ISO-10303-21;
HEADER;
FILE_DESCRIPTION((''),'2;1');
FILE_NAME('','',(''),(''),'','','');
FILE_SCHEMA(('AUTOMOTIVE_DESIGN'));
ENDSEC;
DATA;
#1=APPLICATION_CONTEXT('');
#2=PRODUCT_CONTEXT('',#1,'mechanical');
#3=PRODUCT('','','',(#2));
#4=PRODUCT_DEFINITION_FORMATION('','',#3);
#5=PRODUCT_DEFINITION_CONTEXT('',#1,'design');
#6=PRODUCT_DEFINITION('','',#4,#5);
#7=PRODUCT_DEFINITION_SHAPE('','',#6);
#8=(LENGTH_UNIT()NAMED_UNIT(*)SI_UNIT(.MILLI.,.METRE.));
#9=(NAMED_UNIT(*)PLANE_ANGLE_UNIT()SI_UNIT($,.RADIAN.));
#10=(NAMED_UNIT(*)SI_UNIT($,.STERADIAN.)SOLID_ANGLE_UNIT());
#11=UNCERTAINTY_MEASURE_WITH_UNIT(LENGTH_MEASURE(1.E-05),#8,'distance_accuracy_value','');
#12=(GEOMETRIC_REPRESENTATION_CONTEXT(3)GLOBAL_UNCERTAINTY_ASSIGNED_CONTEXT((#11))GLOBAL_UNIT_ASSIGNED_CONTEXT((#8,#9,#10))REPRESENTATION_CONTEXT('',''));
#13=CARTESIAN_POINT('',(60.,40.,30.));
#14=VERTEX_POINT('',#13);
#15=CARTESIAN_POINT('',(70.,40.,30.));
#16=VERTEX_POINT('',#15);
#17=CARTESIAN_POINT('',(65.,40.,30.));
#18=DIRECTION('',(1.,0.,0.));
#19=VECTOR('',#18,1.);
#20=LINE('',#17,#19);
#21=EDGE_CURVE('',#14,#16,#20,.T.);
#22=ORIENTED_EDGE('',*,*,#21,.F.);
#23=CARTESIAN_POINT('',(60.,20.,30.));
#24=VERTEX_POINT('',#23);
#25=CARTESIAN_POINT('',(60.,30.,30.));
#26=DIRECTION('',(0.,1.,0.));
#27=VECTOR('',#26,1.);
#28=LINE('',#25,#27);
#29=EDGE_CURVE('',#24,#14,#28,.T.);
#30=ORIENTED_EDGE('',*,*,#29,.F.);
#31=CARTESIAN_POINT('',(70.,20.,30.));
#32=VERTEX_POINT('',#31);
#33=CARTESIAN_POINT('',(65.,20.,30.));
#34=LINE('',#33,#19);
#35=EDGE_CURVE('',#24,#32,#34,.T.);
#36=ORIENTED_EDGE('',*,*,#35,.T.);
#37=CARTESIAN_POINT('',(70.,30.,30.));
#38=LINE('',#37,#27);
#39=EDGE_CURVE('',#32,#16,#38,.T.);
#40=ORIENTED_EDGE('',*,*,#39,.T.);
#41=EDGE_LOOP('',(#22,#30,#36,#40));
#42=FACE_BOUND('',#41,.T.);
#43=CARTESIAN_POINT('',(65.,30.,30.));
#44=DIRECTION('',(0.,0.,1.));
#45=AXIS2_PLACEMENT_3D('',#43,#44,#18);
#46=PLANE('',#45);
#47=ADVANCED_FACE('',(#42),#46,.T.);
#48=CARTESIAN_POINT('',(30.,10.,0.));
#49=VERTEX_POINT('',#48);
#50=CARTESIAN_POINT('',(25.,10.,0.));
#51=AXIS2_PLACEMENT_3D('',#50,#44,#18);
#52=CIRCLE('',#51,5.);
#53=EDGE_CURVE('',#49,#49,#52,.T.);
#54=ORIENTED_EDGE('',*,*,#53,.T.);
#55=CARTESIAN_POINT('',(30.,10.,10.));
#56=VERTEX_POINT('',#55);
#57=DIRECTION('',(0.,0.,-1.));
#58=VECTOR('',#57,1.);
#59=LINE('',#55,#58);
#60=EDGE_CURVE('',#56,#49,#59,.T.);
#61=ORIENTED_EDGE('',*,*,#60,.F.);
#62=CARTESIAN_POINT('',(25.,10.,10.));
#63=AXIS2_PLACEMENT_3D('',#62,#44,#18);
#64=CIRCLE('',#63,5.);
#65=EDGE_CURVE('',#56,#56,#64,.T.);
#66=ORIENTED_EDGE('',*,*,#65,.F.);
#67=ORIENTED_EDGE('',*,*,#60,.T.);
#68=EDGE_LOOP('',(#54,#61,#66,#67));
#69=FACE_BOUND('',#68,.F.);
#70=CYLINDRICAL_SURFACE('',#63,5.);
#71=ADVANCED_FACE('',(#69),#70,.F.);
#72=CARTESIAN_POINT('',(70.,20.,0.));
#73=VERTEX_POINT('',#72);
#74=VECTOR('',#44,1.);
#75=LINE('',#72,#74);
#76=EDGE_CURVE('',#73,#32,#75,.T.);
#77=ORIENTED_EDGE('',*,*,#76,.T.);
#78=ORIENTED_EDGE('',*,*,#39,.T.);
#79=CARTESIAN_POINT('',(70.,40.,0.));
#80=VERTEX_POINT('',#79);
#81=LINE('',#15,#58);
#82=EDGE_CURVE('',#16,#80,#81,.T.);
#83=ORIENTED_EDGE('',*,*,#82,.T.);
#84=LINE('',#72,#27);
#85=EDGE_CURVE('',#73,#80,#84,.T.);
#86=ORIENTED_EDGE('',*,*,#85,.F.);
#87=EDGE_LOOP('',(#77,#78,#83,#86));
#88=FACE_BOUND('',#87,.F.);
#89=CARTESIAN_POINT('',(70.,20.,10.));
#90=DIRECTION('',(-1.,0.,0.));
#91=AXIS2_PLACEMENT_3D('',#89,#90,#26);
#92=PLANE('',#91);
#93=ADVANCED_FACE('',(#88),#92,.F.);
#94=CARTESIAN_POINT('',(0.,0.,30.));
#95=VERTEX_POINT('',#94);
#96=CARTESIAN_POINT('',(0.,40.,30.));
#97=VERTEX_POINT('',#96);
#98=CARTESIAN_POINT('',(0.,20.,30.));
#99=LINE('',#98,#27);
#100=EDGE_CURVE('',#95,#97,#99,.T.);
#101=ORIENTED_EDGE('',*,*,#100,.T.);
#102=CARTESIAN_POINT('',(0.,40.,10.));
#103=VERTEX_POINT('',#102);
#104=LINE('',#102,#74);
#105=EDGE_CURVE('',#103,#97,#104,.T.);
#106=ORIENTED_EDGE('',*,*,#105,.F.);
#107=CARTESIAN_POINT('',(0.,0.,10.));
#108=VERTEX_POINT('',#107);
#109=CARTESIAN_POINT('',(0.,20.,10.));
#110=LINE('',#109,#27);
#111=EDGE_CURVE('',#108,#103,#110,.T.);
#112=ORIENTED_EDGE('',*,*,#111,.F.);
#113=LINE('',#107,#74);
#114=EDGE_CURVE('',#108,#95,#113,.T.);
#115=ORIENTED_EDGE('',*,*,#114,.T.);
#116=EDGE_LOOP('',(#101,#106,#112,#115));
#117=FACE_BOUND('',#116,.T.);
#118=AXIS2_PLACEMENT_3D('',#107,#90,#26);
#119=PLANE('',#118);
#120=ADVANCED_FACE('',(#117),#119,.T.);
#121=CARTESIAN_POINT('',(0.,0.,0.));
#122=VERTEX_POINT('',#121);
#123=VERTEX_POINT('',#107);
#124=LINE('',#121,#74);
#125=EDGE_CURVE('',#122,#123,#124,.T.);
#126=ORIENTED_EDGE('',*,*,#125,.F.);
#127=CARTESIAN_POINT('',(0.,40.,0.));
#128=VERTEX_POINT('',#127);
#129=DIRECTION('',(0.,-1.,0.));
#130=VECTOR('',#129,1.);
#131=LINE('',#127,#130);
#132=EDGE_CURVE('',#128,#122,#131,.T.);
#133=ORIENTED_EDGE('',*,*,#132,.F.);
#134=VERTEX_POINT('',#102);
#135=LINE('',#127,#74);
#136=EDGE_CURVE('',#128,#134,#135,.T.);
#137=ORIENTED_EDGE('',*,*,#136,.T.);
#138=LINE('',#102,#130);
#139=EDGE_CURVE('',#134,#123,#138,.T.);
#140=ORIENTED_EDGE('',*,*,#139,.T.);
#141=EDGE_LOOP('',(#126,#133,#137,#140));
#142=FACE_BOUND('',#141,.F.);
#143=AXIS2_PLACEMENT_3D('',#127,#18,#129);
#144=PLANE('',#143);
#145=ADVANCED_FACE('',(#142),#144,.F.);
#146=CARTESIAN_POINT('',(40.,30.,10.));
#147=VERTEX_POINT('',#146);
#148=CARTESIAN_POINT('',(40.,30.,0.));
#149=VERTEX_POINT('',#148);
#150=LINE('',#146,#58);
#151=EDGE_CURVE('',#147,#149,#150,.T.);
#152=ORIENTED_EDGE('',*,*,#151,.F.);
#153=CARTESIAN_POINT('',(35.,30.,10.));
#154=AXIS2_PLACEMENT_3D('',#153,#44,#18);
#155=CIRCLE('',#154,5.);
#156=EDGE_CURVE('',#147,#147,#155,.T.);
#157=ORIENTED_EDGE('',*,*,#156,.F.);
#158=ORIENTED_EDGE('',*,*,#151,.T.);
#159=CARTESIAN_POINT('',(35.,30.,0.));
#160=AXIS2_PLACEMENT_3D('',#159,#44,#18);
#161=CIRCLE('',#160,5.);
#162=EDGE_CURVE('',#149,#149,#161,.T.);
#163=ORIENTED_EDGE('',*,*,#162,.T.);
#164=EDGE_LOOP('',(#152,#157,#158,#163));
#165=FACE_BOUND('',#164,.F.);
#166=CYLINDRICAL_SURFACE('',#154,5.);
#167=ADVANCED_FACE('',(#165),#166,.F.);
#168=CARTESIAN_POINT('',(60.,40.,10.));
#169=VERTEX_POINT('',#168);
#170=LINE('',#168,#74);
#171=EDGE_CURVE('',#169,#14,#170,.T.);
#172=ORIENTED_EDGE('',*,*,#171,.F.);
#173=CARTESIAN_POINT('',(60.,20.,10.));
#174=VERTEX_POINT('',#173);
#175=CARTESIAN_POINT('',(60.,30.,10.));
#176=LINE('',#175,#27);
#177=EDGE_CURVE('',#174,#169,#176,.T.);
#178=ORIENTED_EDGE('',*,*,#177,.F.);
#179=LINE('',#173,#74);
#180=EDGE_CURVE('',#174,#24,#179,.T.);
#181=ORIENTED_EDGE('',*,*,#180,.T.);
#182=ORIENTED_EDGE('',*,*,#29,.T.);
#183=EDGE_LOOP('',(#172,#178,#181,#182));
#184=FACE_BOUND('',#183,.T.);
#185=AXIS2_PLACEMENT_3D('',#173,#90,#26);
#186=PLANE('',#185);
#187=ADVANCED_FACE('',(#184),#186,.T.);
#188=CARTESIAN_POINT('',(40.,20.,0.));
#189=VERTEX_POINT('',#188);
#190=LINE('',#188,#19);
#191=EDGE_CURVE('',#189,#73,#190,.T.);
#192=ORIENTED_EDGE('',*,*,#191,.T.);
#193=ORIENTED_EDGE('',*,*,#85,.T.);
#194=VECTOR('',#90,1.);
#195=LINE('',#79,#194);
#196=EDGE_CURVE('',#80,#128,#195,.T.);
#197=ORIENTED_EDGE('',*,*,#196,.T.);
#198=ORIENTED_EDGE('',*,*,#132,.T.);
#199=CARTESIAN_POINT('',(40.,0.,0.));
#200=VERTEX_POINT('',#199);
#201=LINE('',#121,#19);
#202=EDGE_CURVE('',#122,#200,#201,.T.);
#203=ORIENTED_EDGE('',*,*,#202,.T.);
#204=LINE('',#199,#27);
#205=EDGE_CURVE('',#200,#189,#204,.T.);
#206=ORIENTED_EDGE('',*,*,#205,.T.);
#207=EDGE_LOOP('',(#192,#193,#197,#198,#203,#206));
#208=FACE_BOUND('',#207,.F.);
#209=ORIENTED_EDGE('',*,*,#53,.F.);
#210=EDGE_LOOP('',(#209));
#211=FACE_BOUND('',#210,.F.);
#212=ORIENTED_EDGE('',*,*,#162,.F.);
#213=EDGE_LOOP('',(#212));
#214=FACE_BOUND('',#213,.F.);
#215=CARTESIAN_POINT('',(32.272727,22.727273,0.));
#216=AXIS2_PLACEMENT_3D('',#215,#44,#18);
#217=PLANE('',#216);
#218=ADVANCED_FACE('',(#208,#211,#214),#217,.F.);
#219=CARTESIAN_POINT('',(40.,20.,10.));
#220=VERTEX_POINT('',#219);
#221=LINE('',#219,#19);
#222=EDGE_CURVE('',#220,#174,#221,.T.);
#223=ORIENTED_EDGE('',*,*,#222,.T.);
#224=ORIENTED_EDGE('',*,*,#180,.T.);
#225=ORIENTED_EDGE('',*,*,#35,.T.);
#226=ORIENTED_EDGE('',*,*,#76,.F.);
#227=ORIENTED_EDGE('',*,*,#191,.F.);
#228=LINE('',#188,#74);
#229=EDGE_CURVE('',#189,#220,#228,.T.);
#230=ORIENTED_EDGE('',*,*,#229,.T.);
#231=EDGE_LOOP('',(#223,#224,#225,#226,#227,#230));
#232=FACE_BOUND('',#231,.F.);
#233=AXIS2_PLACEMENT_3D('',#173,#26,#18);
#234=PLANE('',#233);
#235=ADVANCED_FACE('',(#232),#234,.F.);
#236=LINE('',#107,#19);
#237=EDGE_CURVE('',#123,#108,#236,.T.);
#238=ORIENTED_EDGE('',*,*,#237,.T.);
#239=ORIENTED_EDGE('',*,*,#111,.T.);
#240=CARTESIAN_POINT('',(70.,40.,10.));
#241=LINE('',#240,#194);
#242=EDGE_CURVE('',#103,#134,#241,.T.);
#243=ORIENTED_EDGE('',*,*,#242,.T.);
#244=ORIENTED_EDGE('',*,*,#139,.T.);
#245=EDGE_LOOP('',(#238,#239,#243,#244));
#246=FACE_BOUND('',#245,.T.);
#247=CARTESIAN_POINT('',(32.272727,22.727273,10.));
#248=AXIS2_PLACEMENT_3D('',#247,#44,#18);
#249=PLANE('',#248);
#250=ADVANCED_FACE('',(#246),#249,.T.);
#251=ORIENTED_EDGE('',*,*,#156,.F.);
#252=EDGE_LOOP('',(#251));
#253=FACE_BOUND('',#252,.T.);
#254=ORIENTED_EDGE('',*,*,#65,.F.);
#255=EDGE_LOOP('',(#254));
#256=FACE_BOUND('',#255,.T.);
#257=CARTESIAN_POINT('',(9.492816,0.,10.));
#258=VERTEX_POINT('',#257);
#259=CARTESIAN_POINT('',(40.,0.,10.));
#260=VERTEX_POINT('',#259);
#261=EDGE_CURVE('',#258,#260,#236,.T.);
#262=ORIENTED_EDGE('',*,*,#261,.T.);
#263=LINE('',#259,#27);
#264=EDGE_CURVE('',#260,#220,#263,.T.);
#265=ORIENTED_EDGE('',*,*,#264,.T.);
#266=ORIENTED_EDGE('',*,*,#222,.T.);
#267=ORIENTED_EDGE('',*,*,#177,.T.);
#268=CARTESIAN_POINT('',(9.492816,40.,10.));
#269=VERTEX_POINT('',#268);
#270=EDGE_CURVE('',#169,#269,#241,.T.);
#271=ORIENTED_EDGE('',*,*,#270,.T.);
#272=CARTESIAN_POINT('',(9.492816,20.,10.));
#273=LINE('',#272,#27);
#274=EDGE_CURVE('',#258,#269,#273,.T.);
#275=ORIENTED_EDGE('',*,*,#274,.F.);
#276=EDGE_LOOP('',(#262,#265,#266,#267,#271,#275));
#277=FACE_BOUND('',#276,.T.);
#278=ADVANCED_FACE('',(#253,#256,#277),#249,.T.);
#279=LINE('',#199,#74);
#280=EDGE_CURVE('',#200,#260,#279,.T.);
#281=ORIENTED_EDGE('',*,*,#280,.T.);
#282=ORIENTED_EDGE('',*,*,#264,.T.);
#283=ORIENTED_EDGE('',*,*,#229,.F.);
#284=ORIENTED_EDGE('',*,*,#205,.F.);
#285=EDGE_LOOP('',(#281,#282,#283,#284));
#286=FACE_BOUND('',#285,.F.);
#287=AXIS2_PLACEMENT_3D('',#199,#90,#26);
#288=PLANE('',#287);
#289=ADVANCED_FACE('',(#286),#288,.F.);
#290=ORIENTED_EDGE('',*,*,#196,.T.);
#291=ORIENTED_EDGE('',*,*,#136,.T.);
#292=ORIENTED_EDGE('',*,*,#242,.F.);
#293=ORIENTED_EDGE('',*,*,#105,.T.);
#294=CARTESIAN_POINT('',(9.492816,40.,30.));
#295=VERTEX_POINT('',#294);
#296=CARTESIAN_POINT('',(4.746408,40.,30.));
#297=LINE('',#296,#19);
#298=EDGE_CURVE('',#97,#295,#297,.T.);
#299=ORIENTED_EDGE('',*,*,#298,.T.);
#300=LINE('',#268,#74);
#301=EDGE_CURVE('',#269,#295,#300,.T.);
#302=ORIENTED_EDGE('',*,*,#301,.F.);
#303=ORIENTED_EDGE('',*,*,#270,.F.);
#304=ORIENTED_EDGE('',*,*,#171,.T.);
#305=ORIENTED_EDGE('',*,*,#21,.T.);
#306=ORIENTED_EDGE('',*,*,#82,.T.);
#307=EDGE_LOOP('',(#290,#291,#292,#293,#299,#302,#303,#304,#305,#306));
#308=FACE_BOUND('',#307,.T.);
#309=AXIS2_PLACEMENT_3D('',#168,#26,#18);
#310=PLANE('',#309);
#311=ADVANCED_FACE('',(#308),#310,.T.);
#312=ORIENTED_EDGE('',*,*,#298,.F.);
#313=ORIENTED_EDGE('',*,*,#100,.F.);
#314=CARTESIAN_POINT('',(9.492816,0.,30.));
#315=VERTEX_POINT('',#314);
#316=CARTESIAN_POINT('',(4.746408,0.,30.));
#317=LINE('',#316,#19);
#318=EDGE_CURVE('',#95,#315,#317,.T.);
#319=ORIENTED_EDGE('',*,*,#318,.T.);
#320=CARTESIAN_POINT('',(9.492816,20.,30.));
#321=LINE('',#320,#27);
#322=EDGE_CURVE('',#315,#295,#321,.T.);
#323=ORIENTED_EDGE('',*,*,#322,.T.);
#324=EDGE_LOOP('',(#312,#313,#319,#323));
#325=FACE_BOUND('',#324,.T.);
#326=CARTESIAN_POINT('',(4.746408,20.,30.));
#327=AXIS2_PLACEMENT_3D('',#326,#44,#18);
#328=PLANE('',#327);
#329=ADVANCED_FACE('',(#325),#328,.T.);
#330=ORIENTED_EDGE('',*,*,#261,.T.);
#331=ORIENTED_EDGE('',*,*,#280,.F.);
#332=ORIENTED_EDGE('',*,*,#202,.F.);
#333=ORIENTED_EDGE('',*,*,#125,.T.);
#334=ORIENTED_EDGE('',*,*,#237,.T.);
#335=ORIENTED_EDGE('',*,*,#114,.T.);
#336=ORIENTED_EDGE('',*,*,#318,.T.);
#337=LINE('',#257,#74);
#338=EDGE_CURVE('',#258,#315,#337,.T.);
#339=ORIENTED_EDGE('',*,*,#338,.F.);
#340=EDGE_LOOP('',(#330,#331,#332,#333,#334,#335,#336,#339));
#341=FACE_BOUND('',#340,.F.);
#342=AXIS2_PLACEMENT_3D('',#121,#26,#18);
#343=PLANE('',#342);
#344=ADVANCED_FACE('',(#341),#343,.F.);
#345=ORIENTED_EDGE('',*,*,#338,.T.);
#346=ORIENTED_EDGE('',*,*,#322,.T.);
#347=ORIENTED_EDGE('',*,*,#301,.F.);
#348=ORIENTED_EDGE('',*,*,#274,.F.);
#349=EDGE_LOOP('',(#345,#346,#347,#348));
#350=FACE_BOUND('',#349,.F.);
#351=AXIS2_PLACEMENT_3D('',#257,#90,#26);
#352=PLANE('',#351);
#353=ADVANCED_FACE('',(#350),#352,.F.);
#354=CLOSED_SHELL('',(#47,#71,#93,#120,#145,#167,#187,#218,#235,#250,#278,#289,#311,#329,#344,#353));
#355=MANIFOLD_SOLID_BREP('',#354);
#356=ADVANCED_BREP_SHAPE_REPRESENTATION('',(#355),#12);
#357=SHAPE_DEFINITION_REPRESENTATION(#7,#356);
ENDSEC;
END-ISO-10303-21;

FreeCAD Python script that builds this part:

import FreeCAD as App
import Part
import Sketcher

doc = App.newDocument("Part")
params = doc.addObject("Spreadsheet::Sheet", "Params")
for row, (alias, value) in enumerate([
    ("sketch1_width", "40 mm"),
    ("sketch1_width2", "30 mm"),
    ("pad1_length", "10 mm"),
    ("sketch2_height", "40 mm"),
    ("pad2_length", "20 mm"),
    ("sketch3_width", "10 mm"),
    ("sketch3_height", "20 mm"),
    ("pad3_length", "20 mm"),
    ("sketch4_diameter", "10 mm"),
    ("sketch5_diameter", "10 mm"),
], start=1):
    params.set(f"A{row}", alias)
    params.set(f"B{row}", "=" + value)
    params.setAlias(f"B{row}", alias)

body = doc.addObject("PartDesign::Body", "Body")

# Sketch on XY plane
sketch1 = body.newObject("Sketcher::SketchObject", "Sketch")
sketch1.AttachmentSupport = (doc.getObject("XY_Plane"), [""])
sketch1.MapMode = "FlatFace"
sketch1.addGeometry([
    Part.LineSegment(App.Vector(0, 40, 0), App.Vector(0, 0, 0)),  # 0
    Part.LineSegment(App.Vector(0, 0, 0), App.Vector(40, 0, 0)),  # 1
    Part.LineSegment(App.Vector(40, 0, 0), App.Vector(40, 20, 0)),  # 2
    Part.LineSegment(App.Vector(40, 20, 0), App.Vector(70, 20, 0)),  # 3
    Part.LineSegment(App.Vector(70, 20, 0), App.Vector(70, 40, 0)),  # 4
    Part.LineSegment(App.Vector(70, 40, 0), App.Vector(0, 40, 0)),  # 5
], False)
sketch1.addConstraint([
    Sketcher.Constraint("Coincident", 0, 2, 1, 1),
    Sketcher.Constraint("Coincident", 1, 2, 2, 1),
    Sketcher.Constraint("Coincident", 2, 2, 3, 1),
    Sketcher.Constraint("Coincident", 3, 2, 4, 1),
    Sketcher.Constraint("Coincident", 4, 2, 5, 1),
    Sketcher.Constraint("Coincident", 5, 2, 0, 1),
    Sketcher.Constraint("Vertical", 0),
    Sketcher.Constraint("Horizontal", 1),
    Sketcher.Constraint("Vertical", 2),
    Sketcher.Constraint("Horizontal", 3),
    Sketcher.Constraint("Vertical", 4),
    Sketcher.Constraint("Horizontal", 5),
    Sketcher.Constraint("Coincident", 0, 2, -1, 1),
    Sketcher.Constraint("Equal", 1, 0),
    Sketcher.Constraint("Equal", 2, 4),
    Sketcher.Constraint("DistanceX", 1, 1, 1, 2, 40.0),
    Sketcher.Constraint("DistanceX", 3, 1, 3, 2, 30.0),
])
sketch1.setExpression("Constraints[15]", "Params.sketch1_width")
sketch1.setExpression("Constraints[16]", "Params.sketch1_width2")
pad1 = body.newObject("PartDesign::Pad", "Pad")
pad1.Profile = sketch1
pad1.setExpression("Length", "Params.pad1_length")

# Sketch on XY plane
sketch2 = body.newObject("Sketcher::SketchObject", "Sketch001")
sketch2.AttachmentSupport = (doc.getObject("XY_Plane"), [""])
sketch2.MapMode = "FlatFace"
sketch2.AttachmentOffset = App.Placement(App.Vector(0, 0, 10), App.Rotation())
sketch2.addGeometry([
    Part.LineSegment(App.Vector(0, 40, 0), App.Vector(0, 0, 0)),
    Part.LineSegment(App.Vector(0, 0, 0), App.Vector(9.492816, 0, 0)),
    Part.LineSegment(App.Vector(9.492816, 0, 0), App.Vector(9.492816, 40, 0)),
    Part.LineSegment(App.Vector(9.492816, 40, 0), App.Vector(0, 40, 0)),
], False)
sketch2.addConstraint([
    Sketcher.Constraint("Coincident", 0, 2, 1, 1),
    Sketcher.Constraint("Coincident", 1, 2, 2, 1),
    Sketcher.Constraint("Coincident", 2, 2, 3, 1),
    Sketcher.Constraint("Coincident", 3, 2, 0, 1),
    Sketcher.Constraint("Vertical", 0),
    Sketcher.Constraint("Horizontal", 1),
    Sketcher.Constraint("Vertical", 2),
    Sketcher.Constraint("Horizontal", 3),
    Sketcher.Constraint("Coincident", 0, 2, -1, 1),
    Sketcher.Constraint("DistanceY", 0, 2, 0, 1, 40.0),
    Sketcher.Constraint("DistanceX", 1, 1, 1, 2, 9.492815),
])
sketch2.setExpression("Constraints[9]", "Params.sketch2_height")
pad2 = body.newObject("PartDesign::Pad", "Pad001")
pad2.Profile = sketch2
pad2.setExpression("Length", "Params.pad2_length")

# Sketch on XY plane
sketch3 = body.newObject("Sketcher::SketchObject", "Sketch002")
sketch3.AttachmentSupport = (doc.getObject("XY_Plane"), [""])
sketch3.MapMode = "FlatFace"
sketch3.AttachmentOffset = App.Placement(App.Vector(0, 0, 10), App.Rotation())
sketch3.addGeometry([
    Part.LineSegment(App.Vector(60, 40, 0), App.Vector(60, 20, 0)),
    Part.LineSegment(App.Vector(60, 20, 0), App.Vector(70, 20, 0)),
    Part.LineSegment(App.Vector(70, 20, 0), App.Vector(70, 40, 0)),
    Part.LineSegment(App.Vector(70, 40, 0), App.Vector(60, 40, 0)),
], False)
sketch3.addConstraint([
    Sketcher.Constraint("Coincident", 0, 2, 1, 1),
    Sketcher.Constraint("Coincident", 1, 2, 2, 1),
    Sketcher.Constraint("Coincident", 2, 2, 3, 1),
    Sketcher.Constraint("Coincident", 3, 2, 0, 1),
    Sketcher.Constraint("Vertical", 0),
    Sketcher.Constraint("Horizontal", 1),
    Sketcher.Constraint("Vertical", 2),
    Sketcher.Constraint("Horizontal", 3),
    Sketcher.Constraint("DistanceX", 1, 1, 1, 2, 10.0),
    Sketcher.Constraint("DistanceY", 0, 2, 0, 1, 20.0),
    Sketcher.Constraint("DistanceX", -1, 1, 0, 2, 60.0),
    Sketcher.Constraint("DistanceY", -1, 1, 0, 2, 20.0),
])
sketch3.setExpression("Constraints[8]", "Params.sketch3_width")
sketch3.setExpression("Constraints[9]", "Params.sketch3_height")
pad3 = body.newObject("PartDesign::Pad", "Pad002")
pad3.Profile = sketch3
pad3.setExpression("Length", "Params.pad3_length")

# Sketch on XY plane
sketch4 = body.newObject("Sketcher::SketchObject", "Sketch003")
sketch4.AttachmentSupport = (doc.getObject("XY_Plane"), [""])
sketch4.MapMode = "FlatFace"
sketch4.AttachmentOffset = App.Placement(App.Vector(0, 0, 10), App.Rotation())
sketch4.addGeometry(Part.Circle(App.Vector(25, 10, 0), App.Vector(0, 0, 1), 5), False)
sketch4.addConstraint([
    Sketcher.Constraint("Diameter", 0, 10.0),
    Sketcher.Constraint("DistanceX", -1, 1, 0, 3, 25.0),
    Sketcher.Constraint("DistanceY", -1, 1, 0, 3, 10.0),
])
sketch4.setExpression("Constraints[0]", "Params.sketch4_diameter")
pocket1 = body.newObject("PartDesign::Pocket", "Pocket")
pocket1.Profile = sketch4
pocket1.Type = "ThroughAll"

# Sketch on XY plane
sketch5 = body.newObject("Sketcher::SketchObject", "Sketch004")
sketch5.AttachmentSupport = (doc.getObject("XY_Plane"), [""])
sketch5.MapMode = "FlatFace"
sketch5.AttachmentOffset = App.Placement(App.Vector(0, 0, 10), App.Rotation())
sketch5.addGeometry(Part.Circle(App.Vector(35, 30, 0), App.Vector(0, 0, 1), 5), False)
sketch5.addConstraint([
    Sketcher.Constraint("Diameter", 0, 10.0),
    Sketcher.Constraint("DistanceX", -1, 1, 0, 3, 35.0),
    Sketcher.Constraint("DistanceY", -1, 1, 0, 3, 30.0),
])
sketch5.setExpression("Constraints[0]", "Params.sketch5_diameter")
pocket2 = body.newObject("PartDesign::Pocket", "Pocket001")
pocket2.Profile = sketch5
pocket2.Type = "ThroughAll"

doc.recompute()
